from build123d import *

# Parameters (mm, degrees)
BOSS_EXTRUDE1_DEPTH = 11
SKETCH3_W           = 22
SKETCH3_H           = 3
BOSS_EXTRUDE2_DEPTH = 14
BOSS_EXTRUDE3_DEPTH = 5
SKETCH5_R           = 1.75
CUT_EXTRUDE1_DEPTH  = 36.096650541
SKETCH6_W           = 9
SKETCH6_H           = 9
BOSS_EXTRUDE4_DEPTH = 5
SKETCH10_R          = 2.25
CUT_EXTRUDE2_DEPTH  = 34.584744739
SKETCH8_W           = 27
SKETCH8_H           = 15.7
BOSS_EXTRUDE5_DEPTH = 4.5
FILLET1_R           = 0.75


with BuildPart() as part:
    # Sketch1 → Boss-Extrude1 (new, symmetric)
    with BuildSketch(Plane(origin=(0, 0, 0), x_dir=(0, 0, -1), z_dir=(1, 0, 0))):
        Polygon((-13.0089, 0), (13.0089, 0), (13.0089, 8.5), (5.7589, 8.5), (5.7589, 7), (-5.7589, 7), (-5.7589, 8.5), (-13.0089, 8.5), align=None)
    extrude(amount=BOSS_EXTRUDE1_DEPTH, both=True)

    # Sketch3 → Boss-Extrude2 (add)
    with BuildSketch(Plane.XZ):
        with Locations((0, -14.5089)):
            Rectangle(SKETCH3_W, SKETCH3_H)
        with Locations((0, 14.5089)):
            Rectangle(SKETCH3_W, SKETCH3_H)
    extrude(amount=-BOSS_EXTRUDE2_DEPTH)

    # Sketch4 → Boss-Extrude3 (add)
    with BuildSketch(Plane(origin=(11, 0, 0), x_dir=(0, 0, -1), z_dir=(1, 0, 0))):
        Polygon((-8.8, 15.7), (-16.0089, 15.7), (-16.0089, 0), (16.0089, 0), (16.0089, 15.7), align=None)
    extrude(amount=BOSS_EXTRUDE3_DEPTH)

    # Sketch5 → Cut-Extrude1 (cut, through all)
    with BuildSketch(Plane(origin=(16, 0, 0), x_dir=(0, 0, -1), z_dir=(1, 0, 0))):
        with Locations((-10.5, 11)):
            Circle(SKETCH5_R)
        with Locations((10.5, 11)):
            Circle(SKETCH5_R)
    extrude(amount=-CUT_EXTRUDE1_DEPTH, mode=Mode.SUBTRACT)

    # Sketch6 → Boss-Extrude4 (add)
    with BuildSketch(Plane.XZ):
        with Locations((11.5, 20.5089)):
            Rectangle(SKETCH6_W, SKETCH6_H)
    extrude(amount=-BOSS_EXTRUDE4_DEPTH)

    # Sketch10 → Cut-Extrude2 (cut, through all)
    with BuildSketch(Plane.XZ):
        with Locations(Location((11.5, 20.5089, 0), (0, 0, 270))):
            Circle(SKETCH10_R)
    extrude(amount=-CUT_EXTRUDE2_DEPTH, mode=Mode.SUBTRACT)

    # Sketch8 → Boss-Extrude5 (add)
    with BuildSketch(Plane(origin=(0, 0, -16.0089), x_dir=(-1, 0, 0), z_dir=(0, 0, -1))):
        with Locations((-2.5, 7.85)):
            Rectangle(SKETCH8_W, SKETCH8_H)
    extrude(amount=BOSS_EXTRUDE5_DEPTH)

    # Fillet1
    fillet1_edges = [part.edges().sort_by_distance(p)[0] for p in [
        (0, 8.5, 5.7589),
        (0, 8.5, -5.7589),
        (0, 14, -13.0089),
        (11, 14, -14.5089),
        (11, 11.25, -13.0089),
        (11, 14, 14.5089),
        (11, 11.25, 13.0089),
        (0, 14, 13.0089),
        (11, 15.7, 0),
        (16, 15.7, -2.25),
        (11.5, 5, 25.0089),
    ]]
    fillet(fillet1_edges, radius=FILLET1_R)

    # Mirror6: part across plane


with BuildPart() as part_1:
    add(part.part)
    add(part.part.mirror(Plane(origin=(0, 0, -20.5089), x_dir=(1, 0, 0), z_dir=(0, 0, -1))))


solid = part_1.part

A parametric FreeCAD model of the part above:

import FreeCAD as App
import Part
import Sketcher


def edges_at(feature, points):
    """Names of the edges that pass closest to the given points."""
    edges = feature.Shape.Edges
    near = lambda p: min(range(len(edges)), key=lambda i: edges[i].distToShape(Part.Vertex(*p))[0])
    return sorted({f"Edge{near(p) + 1}" for p in points})

doc = App.newDocument("Part")
body = doc.addObject("PartDesign::Body", "Body")

# Sketch on YZ plane
sketch1 = body.newObject("Sketcher::SketchObject", "Sketch")
sketch1.AttachmentSupport = (doc.getObject("YZ_Plane"), [""])
sketch1.MapMode = "FlatFace"
sketch1.addGeometry([
    Part.LineSegment(App.Vector(0, 13.0089, 0), App.Vector(0, -13.0089, 0)),  # 0
    Part.LineSegment(App.Vector(0, -13.0089, 0), App.Vector(8.5, -13.0089, 0)),  # 1
    Part.LineSegment(App.Vector(8.5, -13.0089, 0), App.Vector(8.5, -5.7589, 0)),  # 2
    Part.LineSegment(App.Vector(8.5, -5.7589, 0), App.Vector(7, -5.7589, 0)),  # 3
    Part.LineSegment(App.Vector(7, -5.7589, 0), App.Vector(7, 5.7589, 0)),  # 4
    Part.LineSegment(App.Vector(7, 5.7589, 0), App.Vector(8.5, 5.7589, 0)),  # 5
    Part.LineSegment(App.Vector(8.5, 5.7589, 0), App.Vector(8.5, 13.0089, 0)),  # 6
    Part.LineSegment(App.Vector(8.5, 13.0089, 0), App.Vector(0, 13.0089, 0)),  # 7
], False)
sketch1.addConstraint([
    Sketcher.Constraint("Coincident", 0, 2, 1, 1),
    Sketcher.Constraint("Coincident", 1, 2, 2, 1),
    Sketcher.Constraint("Coincident", 2, 2, 3, 1),
    Sketcher.Constraint("Coincident", 3, 2, 4, 1),
    Sketcher.Constraint("Coincident", 4, 2, 5, 1),
    Sketcher.Constraint("Coincident", 5, 2, 6, 1),
    Sketcher.Constraint("Coincident", 6, 2, 7, 1),
    Sketcher.Constraint("Coincident", 7, 2, 0, 1),
    Sketcher.Constraint("Vertical", 0),
    Sketcher.Constraint("Horizontal", 1),
    Sketcher.Constraint("Vertical", 2),
    Sketcher.Constraint("Horizontal", 3),
    Sketcher.Constraint("Vertical", 4),
    Sketcher.Constraint("Horizontal", 5),
    Sketcher.Constraint("Vertical", 6),
    Sketcher.Constraint("Horizontal", 7),
    Sketcher.Constraint("Symmetric", 0, 2, 7, 2, -1, 1),
    Sketcher.Constraint("Symmetric", 2, 2, 5, 2, -1),
    Sketcher.Constraint("DistanceX", 1, 1, 1, 2, 8.5),
    Sketcher.Constraint("DistanceX", 3, 2, 3, 1, 1.5),
    Sketcher.Constraint("DistanceY", 2, 1, 2, 2, 7.25),
    Sketcher.Constraint("DistanceY", 0, 2, 0, 1, 26.0178),
])
pad1 = body.newObject("PartDesign::Pad", "Pad")
pad1.Profile = sketch1
pad1.Length = 22
pad1.Midplane = True

# Sketch on XZ plane
sketch2 = body.newObject("Sketcher::SketchObject", "Sketch001")
sketch2.AttachmentSupport = (doc.getObject("XZ_Plane"), [""])
sketch2.MapMode = "FlatFace"
sketch2.addGeometry([
    Part.LineSegment(App.Vector(-11, -13.0089, 0), App.Vector(-11, -16.0089, 0)),  # 0
    Part.LineSegment(App.Vector(-11, -16.0089, 0), App.Vector(11, -16.0089, 0)),  # 1
    Part.LineSegment(App.Vector(11, -16.0089, 0), App.Vector(11, -13.0089, 0)),  # 2
    Part.LineSegment(App.Vector(11, -13.0089, 0), App.Vector(-11, -13.0089, 0)),  # 3
    Part.LineSegment(App.Vector(-11, 16.0089, 0), App.Vector(-11, 13.0089, 0)),  # 4
    Part.LineSegment(App.Vector(-11, 13.0089, 0), App.Vector(11, 13.0089, 0)),  # 5
    Part.LineSegment(App.Vector(11, 13.0089, 0), App.Vector(11, 16.0089, 0)),  # 6
    Part.LineSegment(App.Vector(11, 16.0089, 0), App.Vector(-11, 16.0089, 0)),  # 7
], False)
sketch2.addConstraint([
    Sketcher.Constraint("Coincident", 0, 2, 1, 1),
    Sketcher.Constraint("Coincident", 1, 2, 2, 1),
    Sketcher.Constraint("Coincident", 2, 2, 3, 1),
    Sketcher.Constraint("Coincident", 3, 2, 0, 1),
    Sketcher.Constraint("Coincident", 4, 2, 5, 1),
    Sketcher.Constraint("Coincident", 5, 2, 6, 1),
    Sketcher.Constraint("Coincident", 6, 2, 7, 1),
    Sketcher.Constraint("Coincident", 7, 2, 4, 1),
    Sketcher.Constraint("Vertical", 0),
    Sketcher.Constraint("Horizontal", 1),
    Sketcher.Constraint("Vertical", 2),
    Sketcher.Constraint("Horizontal", 3),
    Sketcher.Constraint("Vertical", 4),
    Sketcher.Constraint("Horizontal", 5),
    Sketcher.Constraint("Vertical", 6),
    Sketcher.Constraint("Horizontal", 7),
    Sketcher.Constraint("Symmetric", 2, 2, 4, 2, -1, 1),
    Sketcher.Constraint("Symmetric", 0, 2, 6, 2, -1, 1),
    Sketcher.Constraint("Vertical", 3, 2, 4, 2),
    Sketcher.Constraint("DistanceX", 1, 1, 1, 2, 22.0),
    Sketcher.Constraint("DistanceY", 0, 2, 0, 1, 3.0),
    Sketcher.Constraint("DistanceY", 0, 2, -1, 1, 16.0089),
])
pad2 = body.newObject("PartDesign::Pad", "Pad001")
pad2.Profile = sketch2
pad2.Length = 14
pad2.Reversed = True

# Sketch on YZ plane
sketch3 = body.newObject("Sketcher::SketchObject", "Sketch002")
sketch3.AttachmentSupport = (doc.getObject("YZ_Plane"), [""])
sketch3.MapMode = "FlatFace"
sketch3.AttachmentOffset = App.Placement(App.Vector(0, 0, 11), App.Rotation())
sketch3.addGeometry([
    Part.LineSegment(App.Vector(15.7, 16.0089, 0), App.Vector(0, 16.0089, 0)),
    Part.LineSegment(App.Vector(0, 16.0089, 0), App.Vector(0, -16.0089, 0)),
    Part.LineSegment(App.Vector(0, -16.0089, 0), App.Vector(15.7, -16.0089, 0)),
    Part.LineSegment(App.Vector(15.7, -16.0089, 0), App.Vector(15.7, 16.0089, 0)),
], False)
sketch3.addConstraint([
    Sketcher.Constraint("Coincident", 0, 2, 1, 1),
    Sketcher.Constraint("Coincident", 1, 2, 2, 1),
    Sketcher.Constraint("Coincident", 2, 2, 3, 1),
    Sketcher.Constraint("Coincident", 3, 2, 0, 1),
    Sketcher.Constraint("Horizontal", 0),
    Sketcher.Constraint("Vertical", 1),
    Sketcher.Constraint("Horizontal", 2),
    Sketcher.Constraint("Vertical", 3),
    Sketcher.Constraint("Symmetric", 0, 2, 1, 2, -1, 1),
    Sketcher.Constraint("DistanceX", 0, 2, 0, 1, 15.7),
    Sketcher.Constraint("DistanceY", 1, 2, 1, 1, 32.0178),
])
pad3 = body.newObject("PartDesign::Pad", "Pad002")
pad3.Profile = sketch3
pad3.Length = 5

# Sketch on YZ plane
sketch4 = body.newObject("Sketcher::SketchObject", "Sketch003")
sketch4.AttachmentSupport = (doc.getObject("YZ_Plane"), [""])
sketch4.MapMode = "FlatFace"
sketch4.AttachmentOffset = App.Placement(App.Vector(0, 0, 16), App.Rotation())
sketch4.addGeometry([
    Part.Circle(App.Vector(11, 10.5, 0), App.Vector(0, 0, 1), 1.75),
    Part.Circle(App.Vector(11, -10.5, 0), App.Vector(0, 0, 1), 1.75),
], False)
sketch4.addConstraint([
    Sketcher.Constraint("Equal", 0, 1),
    Sketcher.Constraint("Symmetric", 0, 3, 1, 3, -1),
    Sketcher.Constraint("Diameter", 0, 3.5),
    Sketcher.Constraint("DistanceX", -1, 1, 0, 3, 11.0),
    Sketcher.Constraint("DistanceY", 1, 3, 0, 3, 21.0),
])
pocket1 = body.newObject("PartDesign::Pocket", "Pocket")
pocket1.Profile = sketch4
pocket1.Type = "ThroughAll"

# Sketch on XZ plane
sketch5 = body.newObject("Sketcher::SketchObject", "Sketch004")
sketch5.AttachmentSupport = (doc.getObject("XZ_Plane"), [""])
sketch5.MapMode = "FlatFace"
sketch5.addGeometry([
    Part.LineSegment(App.Vector(7, 25.0089, 0), App.Vector(7, 16.0089, 0)),
    Part.LineSegment(App.Vector(7, 16.0089, 0), App.Vector(16, 16.0089, 0)),
    Part.LineSegment(App.Vector(16, 16.0089, 0), App.Vector(16, 25.0089, 0)),
    Part.LineSegment(App.Vector(16, 25.0089, 0), App.Vector(7, 25.0089, 0)),
], False)
sketch5.addConstraint([
    Sketcher.Constraint("Coincident", 0, 2, 1, 1),
    Sketcher.Constraint("Coincident", 1, 2, 2, 1),
    Sketcher.Constraint("Coincident", 2, 2, 3, 1),
    Sketcher.Constraint("Coincident", 3, 2, 0, 1),
    Sketcher.Constraint("Vertical", 0),
    Sketcher.Constraint("Horizontal", 1),
    Sketcher.Constraint("Vertical", 2),
    Sketcher.Constraint("Horizontal", 3),
    Sketcher.Constraint("Equal", 3, 0),
    Sketcher.Constraint("DistanceX", 1, 1, 1, 2, 9.0),
    Sketcher.Constraint("DistanceX", -1, 1, 0, 2, 7.0),
    Sketcher.Constraint("DistanceY", -1, 1, 0, 2, 16.0089),
])
pad4 = body.newObject("PartDesign::Pad", "Pad003")
pad4.Profile = sketch5
pad4.Length = 5
pad4.Reversed = True

# Sketch on XZ plane
sketch6 = body.newObject("Sketcher::SketchObject", "Sketch005")
sketch6.AttachmentSupport = (doc.getObject("XZ_Plane"), [""])
sketch6.MapMode = "FlatFace"
sketch6.addGeometry(Part.Circle(App.Vector(11.5, 20.5089, 0), App.Vector(0, 0, 1), 2.25), False)
sketch6.addConstraint([
    Sketcher.Constraint("Diameter", 0, 4.5),
    Sketcher.Constraint("DistanceX", -1, 1, 0, 3, 11.5),
    Sketcher.Constraint("DistanceY", -1, 1, 0, 3, 20.5089),
])
pocket2 = body.newObject("PartDesign::Pocket", "Pocket001")
pocket2.Profile = sketch6
pocket2.Type = "ThroughAll"

# Sketch on XY plane
sketch7 = body.newObject("Sketcher::SketchObject", "Sketch006")
sketch7.AttachmentSupport = (doc.getObject("XY_Plane"), [""])
sketch7.MapMode = "FlatFace"
sketch7.AttachmentOffset = App.Placement(App.Vector(0, 0, -16.0089), App.Rotation())
sketch7.addGeometry([
    Part.LineSegment(App.Vector(16, 15.7, 0), App.Vector(16, 0, 0)),
    Part.LineSegment(App.Vector(16, 0, 0), App.Vector(-11, 0, 0)),
    Part.LineSegment(App.Vector(-11, 0, 0), App.Vector(-11, 15.7, 0)),
    Part.LineSegment(App.Vector(-11, 15.7, 0), App.Vector(16, 15.7, 0)),
], False)
sketch7.addConstraint([
    Sketcher.Constraint("Coincident", 0, 2, 1, 1),
    Sketcher.Constraint("Coincident", 1, 2, 2, 1),
    Sketcher.Constraint("Coincident", 2, 2, 3, 1),
    Sketcher.Constraint("Coincident", 3, 2, 0, 1),
    Sketcher.Constraint("Vertical", 0),
    Sketcher.Constraint("Horizontal", 1),
    Sketcher.Constraint("Vertical", 2),
    Sketcher.Constraint("Horizontal", 3),
    Sketcher.Constraint("PointOnObject", 0, 2, -1),
    Sketcher.Constraint("DistanceX", 1, 2, 1, 1, 27.0),
    Sketcher.Constraint("DistanceY", 0, 2, 0, 1, 15.7),
    Sketcher.Constraint("DistanceX", -1, 1, 0, 2, 16.0),
])
pad5 = body.newObject("PartDesign::Pad", "Pad004")
pad5.Profile = sketch7
pad5.Length = 4.5
pad5.Reversed = True
doc.recompute()

fillet = body.newObject("PartDesign::Fillet", "Fillet")
fillet.Base = (pad5, edges_at(pad5, [
    (0, 8.5, 5.759),
    (0, 8.5, -5.759),
    (0, 14, -13.009),
    (11, 14, -14.509),
    (11, 11.25, -13.009),
    (11, 14, 14.509),
    (11, 11.25, 13.009),
    (0, 14, 13.009),
    (11, 15.7, 0),
    (16, 15.7, -2.25),
    (11.5, 5, 25.009),
]))
fillet.Radius = 0.75
body2 = doc.addObject("PartDesign::Body", "Body001")
doc.recompute()

body2.BaseFeature = body
doc.recompute()

mirroring = doc.addObject("Part::Mirroring", "Mirroring")
mirroring.Source = body
mirroring.Base = App.Vector(0, 0, -20.5089)
mirroring.Normal = App.Vector(0, 0, -1)
body3 = doc.addObject("PartDesign::Body", "Body002")
body3.BaseFeature = mirroring
boolean = body2.newObject("PartDesign::Boolean", "Boolean")
boolean.Type = "Fuse"
boolean.addObjects([body3])
doc.recompute()
mirroring.Visibility = False

doc.recompute()
